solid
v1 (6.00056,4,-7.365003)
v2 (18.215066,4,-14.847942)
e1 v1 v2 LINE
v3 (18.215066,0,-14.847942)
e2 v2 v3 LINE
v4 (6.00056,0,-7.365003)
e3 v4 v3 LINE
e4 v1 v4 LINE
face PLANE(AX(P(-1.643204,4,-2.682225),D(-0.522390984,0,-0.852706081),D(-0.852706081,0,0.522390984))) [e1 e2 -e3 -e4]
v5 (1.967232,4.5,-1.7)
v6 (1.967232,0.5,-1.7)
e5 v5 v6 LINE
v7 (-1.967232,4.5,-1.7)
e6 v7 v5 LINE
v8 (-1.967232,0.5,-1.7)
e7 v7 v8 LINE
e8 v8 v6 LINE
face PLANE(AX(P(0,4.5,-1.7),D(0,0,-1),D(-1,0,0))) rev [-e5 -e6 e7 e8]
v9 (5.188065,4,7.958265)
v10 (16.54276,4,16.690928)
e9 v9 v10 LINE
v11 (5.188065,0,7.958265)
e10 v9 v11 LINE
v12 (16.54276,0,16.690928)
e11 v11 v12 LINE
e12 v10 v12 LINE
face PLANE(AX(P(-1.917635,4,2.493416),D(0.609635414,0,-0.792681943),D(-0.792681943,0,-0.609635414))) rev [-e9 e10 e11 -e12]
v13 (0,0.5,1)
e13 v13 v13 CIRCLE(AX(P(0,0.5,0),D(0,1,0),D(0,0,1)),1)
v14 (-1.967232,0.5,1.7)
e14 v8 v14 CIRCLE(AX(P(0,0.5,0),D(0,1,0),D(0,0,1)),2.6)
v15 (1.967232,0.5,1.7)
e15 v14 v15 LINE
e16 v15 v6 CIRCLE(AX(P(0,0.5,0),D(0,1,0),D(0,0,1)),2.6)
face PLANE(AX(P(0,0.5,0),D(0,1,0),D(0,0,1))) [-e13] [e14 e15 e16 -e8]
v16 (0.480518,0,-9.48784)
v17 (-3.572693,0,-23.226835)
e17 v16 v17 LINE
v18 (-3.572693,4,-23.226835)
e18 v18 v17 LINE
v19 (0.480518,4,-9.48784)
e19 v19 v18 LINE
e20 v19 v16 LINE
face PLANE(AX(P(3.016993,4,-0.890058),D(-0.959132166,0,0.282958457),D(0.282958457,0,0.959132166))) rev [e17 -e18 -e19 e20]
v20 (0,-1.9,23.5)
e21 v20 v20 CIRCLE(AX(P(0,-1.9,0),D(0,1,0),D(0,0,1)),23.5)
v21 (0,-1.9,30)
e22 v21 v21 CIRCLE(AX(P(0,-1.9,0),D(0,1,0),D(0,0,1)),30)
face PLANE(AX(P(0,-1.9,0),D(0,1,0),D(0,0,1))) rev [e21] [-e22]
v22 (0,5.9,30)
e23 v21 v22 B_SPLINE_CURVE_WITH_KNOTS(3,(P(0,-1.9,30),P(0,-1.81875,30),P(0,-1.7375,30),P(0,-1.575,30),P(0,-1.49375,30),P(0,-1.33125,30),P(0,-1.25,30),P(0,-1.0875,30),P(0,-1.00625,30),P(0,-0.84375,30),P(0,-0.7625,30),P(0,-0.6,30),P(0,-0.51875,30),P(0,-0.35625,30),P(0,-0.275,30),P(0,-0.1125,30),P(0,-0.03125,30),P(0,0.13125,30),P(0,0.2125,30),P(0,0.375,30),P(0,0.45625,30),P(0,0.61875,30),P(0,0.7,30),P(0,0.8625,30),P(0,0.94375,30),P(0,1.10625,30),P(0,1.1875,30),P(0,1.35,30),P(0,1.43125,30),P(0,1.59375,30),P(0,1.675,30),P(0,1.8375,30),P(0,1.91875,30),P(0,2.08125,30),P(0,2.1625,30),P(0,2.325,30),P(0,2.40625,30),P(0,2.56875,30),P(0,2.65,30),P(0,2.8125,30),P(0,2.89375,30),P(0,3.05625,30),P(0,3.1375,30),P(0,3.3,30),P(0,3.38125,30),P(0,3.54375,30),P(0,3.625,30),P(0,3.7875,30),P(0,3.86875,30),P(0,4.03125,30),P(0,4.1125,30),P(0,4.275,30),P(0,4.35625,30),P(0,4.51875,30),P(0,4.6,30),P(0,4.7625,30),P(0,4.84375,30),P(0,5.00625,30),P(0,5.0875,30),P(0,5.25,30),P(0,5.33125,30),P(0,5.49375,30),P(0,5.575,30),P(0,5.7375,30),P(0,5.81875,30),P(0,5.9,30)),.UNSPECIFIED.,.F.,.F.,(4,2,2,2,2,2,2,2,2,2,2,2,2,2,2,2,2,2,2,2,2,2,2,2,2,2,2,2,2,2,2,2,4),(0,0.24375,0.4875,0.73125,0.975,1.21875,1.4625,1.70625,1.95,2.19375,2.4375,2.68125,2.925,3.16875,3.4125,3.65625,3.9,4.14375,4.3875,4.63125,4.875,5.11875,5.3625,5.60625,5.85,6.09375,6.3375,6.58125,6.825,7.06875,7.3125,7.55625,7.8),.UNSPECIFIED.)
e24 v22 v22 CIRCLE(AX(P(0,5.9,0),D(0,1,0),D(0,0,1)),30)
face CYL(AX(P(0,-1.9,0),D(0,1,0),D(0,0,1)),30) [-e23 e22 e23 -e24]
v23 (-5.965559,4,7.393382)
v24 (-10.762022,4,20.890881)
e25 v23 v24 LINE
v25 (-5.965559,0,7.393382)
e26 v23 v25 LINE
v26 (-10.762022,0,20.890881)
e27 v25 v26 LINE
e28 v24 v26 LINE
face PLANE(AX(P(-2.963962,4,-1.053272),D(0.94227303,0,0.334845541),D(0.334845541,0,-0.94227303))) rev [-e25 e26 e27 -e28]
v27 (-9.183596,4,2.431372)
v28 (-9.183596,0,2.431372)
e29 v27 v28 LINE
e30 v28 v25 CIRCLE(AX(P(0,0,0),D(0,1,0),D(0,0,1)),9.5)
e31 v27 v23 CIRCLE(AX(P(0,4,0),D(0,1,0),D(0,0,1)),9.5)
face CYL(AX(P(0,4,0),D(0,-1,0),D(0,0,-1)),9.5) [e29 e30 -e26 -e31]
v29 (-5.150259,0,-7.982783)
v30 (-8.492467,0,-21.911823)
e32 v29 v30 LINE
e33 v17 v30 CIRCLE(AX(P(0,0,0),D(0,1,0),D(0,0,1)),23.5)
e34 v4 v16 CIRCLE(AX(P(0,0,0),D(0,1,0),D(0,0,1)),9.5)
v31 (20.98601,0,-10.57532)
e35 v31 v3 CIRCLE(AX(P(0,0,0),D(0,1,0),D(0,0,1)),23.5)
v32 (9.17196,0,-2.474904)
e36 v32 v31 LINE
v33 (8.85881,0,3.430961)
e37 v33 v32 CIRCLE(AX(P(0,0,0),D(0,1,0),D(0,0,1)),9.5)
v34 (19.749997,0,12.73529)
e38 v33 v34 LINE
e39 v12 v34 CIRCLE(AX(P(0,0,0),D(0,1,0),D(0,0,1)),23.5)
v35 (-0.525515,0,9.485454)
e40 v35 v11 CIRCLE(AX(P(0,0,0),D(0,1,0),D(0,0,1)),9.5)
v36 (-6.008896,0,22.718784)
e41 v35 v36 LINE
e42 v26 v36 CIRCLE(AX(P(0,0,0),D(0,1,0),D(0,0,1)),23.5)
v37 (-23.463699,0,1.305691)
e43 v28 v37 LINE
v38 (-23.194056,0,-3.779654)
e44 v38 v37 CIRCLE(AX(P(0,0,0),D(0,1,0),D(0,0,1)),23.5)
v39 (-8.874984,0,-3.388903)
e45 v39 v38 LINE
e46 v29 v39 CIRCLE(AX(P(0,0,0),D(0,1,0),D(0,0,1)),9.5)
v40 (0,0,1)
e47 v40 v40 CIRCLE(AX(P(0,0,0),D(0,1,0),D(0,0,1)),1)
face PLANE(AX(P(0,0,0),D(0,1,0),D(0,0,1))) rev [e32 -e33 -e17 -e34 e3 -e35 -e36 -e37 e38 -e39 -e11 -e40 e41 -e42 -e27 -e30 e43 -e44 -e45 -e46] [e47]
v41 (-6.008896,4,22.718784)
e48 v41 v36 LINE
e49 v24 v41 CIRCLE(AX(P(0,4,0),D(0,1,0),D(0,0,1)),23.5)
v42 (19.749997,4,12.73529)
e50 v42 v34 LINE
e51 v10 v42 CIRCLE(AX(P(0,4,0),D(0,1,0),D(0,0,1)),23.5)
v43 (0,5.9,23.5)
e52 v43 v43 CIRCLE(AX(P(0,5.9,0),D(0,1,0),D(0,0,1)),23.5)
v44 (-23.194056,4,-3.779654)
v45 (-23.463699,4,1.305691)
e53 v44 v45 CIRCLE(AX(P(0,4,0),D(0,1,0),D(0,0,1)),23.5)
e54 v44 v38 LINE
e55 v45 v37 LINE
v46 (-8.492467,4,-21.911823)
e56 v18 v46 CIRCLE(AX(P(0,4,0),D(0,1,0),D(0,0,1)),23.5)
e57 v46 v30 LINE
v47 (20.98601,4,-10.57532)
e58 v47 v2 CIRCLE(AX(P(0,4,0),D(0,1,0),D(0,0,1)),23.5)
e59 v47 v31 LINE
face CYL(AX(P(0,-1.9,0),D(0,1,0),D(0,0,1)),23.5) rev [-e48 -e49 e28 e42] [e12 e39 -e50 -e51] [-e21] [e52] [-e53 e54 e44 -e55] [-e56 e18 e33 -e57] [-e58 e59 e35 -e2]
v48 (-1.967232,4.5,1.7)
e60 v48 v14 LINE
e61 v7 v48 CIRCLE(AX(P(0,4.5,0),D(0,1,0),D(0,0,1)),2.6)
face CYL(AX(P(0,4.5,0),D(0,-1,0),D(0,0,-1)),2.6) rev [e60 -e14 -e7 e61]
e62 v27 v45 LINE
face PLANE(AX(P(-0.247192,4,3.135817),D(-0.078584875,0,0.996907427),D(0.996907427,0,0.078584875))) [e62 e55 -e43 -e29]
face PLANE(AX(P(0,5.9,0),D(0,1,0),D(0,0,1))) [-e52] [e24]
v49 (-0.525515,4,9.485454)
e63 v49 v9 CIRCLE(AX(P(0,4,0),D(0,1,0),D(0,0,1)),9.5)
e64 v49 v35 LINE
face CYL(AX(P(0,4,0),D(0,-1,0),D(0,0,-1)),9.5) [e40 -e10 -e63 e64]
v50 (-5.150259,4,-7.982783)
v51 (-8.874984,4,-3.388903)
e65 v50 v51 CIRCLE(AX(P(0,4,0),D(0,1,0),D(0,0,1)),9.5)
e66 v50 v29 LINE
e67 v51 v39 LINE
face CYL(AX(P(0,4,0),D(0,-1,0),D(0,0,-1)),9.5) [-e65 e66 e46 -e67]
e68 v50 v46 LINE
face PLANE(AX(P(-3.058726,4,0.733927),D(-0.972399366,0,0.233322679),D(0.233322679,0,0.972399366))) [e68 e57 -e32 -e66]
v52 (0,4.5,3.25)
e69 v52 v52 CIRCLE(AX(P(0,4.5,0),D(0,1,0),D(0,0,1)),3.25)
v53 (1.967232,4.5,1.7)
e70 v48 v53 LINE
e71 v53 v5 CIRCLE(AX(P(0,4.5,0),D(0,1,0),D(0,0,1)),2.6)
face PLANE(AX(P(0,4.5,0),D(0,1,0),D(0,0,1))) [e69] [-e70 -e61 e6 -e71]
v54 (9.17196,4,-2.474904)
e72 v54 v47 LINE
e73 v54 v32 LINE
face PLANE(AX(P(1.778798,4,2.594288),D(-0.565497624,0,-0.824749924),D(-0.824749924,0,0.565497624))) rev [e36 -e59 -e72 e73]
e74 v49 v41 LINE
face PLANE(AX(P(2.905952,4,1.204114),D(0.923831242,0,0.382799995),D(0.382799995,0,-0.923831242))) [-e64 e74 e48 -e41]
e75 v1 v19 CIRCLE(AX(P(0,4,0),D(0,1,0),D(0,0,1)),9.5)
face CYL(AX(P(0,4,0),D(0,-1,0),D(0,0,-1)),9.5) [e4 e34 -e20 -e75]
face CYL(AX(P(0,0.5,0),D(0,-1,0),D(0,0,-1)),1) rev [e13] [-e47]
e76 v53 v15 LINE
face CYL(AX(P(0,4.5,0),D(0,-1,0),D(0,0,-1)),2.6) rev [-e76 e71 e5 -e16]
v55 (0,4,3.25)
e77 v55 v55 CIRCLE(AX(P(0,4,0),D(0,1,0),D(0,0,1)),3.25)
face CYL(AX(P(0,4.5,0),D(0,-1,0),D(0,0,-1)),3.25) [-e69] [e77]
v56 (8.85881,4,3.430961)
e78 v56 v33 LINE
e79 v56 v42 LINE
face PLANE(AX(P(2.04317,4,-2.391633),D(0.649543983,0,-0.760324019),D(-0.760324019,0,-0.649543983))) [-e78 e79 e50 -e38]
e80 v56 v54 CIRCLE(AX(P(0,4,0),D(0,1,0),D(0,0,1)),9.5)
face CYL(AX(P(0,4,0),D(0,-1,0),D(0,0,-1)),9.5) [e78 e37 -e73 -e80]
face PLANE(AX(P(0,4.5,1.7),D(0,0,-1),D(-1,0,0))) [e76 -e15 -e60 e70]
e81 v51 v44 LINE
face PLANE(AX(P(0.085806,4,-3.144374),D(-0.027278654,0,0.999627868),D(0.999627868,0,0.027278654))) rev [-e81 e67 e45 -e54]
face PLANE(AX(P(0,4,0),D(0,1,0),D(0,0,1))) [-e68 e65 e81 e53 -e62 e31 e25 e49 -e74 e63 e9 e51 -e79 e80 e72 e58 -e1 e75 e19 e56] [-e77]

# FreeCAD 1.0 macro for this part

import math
import FreeCAD as App
import Part
import Sketcher

V = App.Vector
Q = App.Units.Quantity

doc = App.newDocument("Part")
body = doc.addObject("PartDesign::Body", "Body")

# Sketch on XZ plane
sketch1 = body.newObject("Sketcher::SketchObject", "Sketch")
sketch1.AttachmentSupport = (doc.getObject("XZ_Plane"), [""])
sketch1.MapMode = "FlatFace"
sketch1.addGeometry([
    Part.LineSegment(V(-8.874984, -3.388903, 0), V(-23.194056, -3.779654, 0)),  # 0
    Part.ArcOfCircle(Part.Circle(V(0, 0, 0), V(0, 0, 1), 23.5), math.radians(176.814931), math.radians(189.255443)),  # 1
    Part.LineSegment(V(-23.463699, 1.305691, 0), V(-9.183596, 2.431372, 0)),  # 2
    Part.ArcOfCircle(Part.Circle(V(0, 0, 0), V(0, 0, 1), 9.5), math.radians(128.899305), math.radians(165.17107)),  # 3
    Part.LineSegment(V(-5.965559, 7.393382, 0), V(-10.762022, 20.890881, 0)),  # 4
    Part.ArcOfCircle(Part.Circle(V(0, 0, 0), V(0, 0, 1), 23.5), math.radians(104.814931), math.radians(117.255443)),  # 5
    Part.LineSegment(V(-6.008896, 22.718784, 0), V(-0.525515, 9.485454, 0)),  # 6
    Part.ArcOfCircle(Part.Circle(V(0, 0, 0), V(0, 0, 1), 9.5), math.radians(56.899305), math.radians(93.17107)),  # 7
    Part.LineSegment(V(5.188065, 7.958265, 0), V(16.54276, 16.690928, 0)),  # 8
    Part.ArcOfCircle(Part.Circle(V(0, 0, 0), V(0, 0, 1), 23.5), math.radians(32.814931), math.radians(45.255443)),  # 9
    Part.LineSegment(V(19.749997, 12.73529, 0), V(8.85881, 3.430961, 0)),  # 10
    Part.ArcOfCircle(Part.Circle(V(0, 0, 0), V(0, 0, 1), 9.5), math.radians(-15.100695), math.radians(21.17107)),  # 11
    Part.LineSegment(V(9.17196, -2.474904, 0), V(20.98601, -10.57532, 0)),  # 12
    Part.ArcOfCircle(Part.Circle(V(0, 0, 0), V(0, 0, 1), 23.5), math.radians(-39.185069), math.radians(-26.744557)),  # 13
    Part.LineSegment(V(18.215066, -14.847942, 0), V(6.00056, -7.365003, 0)),  # 14
    Part.ArcOfCircle(Part.Circle(V(0, 0, 0), V(0, 0, 1), 9.5), math.radians(-87.100695), math.radians(-50.82893)),  # 15
    Part.LineSegment(V(0.480518, -9.48784, 0), V(-3.572693, -23.226835, 0)),  # 16
    Part.ArcOfCircle(Part.Circle(V(0, 0, 0), V(0, 0, 1), 23.5), math.radians(-104.964813), math.radians(-98.744557)),  # 17
    Part.ArcOfCircle(Part.Circle(V(0, 0, 0), V(0, 0, 1), 23.5), math.radians(-111.185068), math.radians(-104.964813)),  # 18
    Part.LineSegment(V(-8.492467, -21.911823, 0), V(-5.150259, -7.982783, 0)),  # 19
    Part.ArcOfCircle(Part.Circle(V(0, 0, 0), V(0, 0, 1), 9.5), math.radians(-159.100695), math.radians(-122.82893)),  # 20
    Part.Circle(V(0, 0, 0), V(0, 0, 1), 3.25),  # 21
], False)
sketch1.addConstraint([
    Sketcher.Constraint("Coincident", 0, 2, 1, 2),
    Sketcher.Constraint("Coincident", 1, 1, 2, 1),
    Sketcher.Constraint("Coincident", 2, 2, 3, 2),
    Sketcher.Constraint("Coincident", 3, 1, 4, 1),
    Sketcher.Constraint("Coincident", 4, 2, 5, 2),
    Sketcher.Constraint("Coincident", 5, 1, 6, 1),
    Sketcher.Constraint("Coincident", 6, 2, 7, 2),
    Sketcher.Constraint("Coincident", 7, 1, 8, 1),
    Sketcher.Constraint("Coincident", 8, 2, 9, 2),
    Sketcher.Constraint("Coincident", 9, 1, 10, 1),
    Sketcher.Constraint("Coincident", 10, 2, 11, 2),
    Sketcher.Constraint("Coincident", 11, 1, 12, 1),
    Sketcher.Constraint("Coincident", 12, 2, 13, 2),
    Sketcher.Constraint("Coincident", 13, 1, 14, 1),
    Sketcher.Constraint("Coincident", 14, 2, 15, 2),
    Sketcher.Constraint("Coincident", 15, 1, 16, 1),
    Sketcher.Constraint("Coincident", 16, 2, 17, 2),
    Sketcher.Constraint("Tangent", 17, 1, 18, 2),
    Sketcher.Constraint("Coincident", 18, 1, 19, 1),
    Sketcher.Constraint("Coincident", 19, 2, 20, 2),
    Sketcher.Constraint("Coincident", 20, 1, 0, 1),
    Sketcher.Constraint("Coincident", 1, 3, -1, 1),
    Sketcher.Constraint("Coincident", 3, 3, -1, 1),
    Sketcher.Constraint("Coincident", 5, 3, -1, 1),
    Sketcher.Constraint("Coincident", 7, 3, -1, 1),
    Sketcher.Constraint("Coincident", 9, 3, -1, 1),
    Sketcher.Constraint("Coincident", 11, 3, -1, 1),
    Sketcher.Constraint("Coincident", 13, 3, -1, 1),
    Sketcher.Constraint("Coincident", 15, 3, -1, 1),
    Sketcher.Constraint("Coincident", 17, 3, -1, 1),
    Sketcher.Constraint("Coincident", 20, 3, -1, 1),
    Sketcher.Constraint("Coincident", 21, 3, -1, 1),
    Sketcher.Constraint("Equal", 1, 5),
    Sketcher.Constraint("Equal", 3, 7),
    Sketcher.Constraint("Equal", 5, 9),
    Sketcher.Constraint("Equal", 7, 11),
    Sketcher.Constraint("Equal", 9, 13),
    Sketcher.Constraint("Equal", 11, 15),
    Sketcher.Constraint("Equal", 13, 17),
    Sketcher.Constraint("Equal", 17, 18),
    Sketcher.Constraint("Equal", 15, 20),
    Sketcher.Constraint("Equal", 0, 2),
    Sketcher.Constraint("Equal", 2, 4),
    Sketcher.Constraint("Equal", 4, 6),
    Sketcher.Constraint("Equal", 6, 8),
    Sketcher.Constraint("Equal", 8, 10),
    Sketcher.Constraint("Equal", 10, 12),
    Sketcher.Constraint("Equal", 12, 14),
    Sketcher.Constraint("Equal", 14, 16),
    Sketcher.Constraint("Equal", 16, 19),
    Sketcher.Constraint("Diameter", 21, Q("6.5 mm")),
    Sketcher.Constraint("Radius", 1, Q("23.5 mm")),
    Sketcher.Constraint("Radius", 3, Q("9.5 mm")),
    Sketcher.Constraint("DistanceX", 1, 1, -1, 1, Q("23.463699 mm")),
    Sketcher.Constraint("DistanceY", 3, 1, 4, 2, Q("13.497498 mm")),
    Sketcher.Constraint("DistanceX", 2, 2, 5, 1, Q("3.1747 mm")),
    Sketcher.Constraint("DistanceX", 10, 2, 12, 2, Q("12.1272 mm")),
    Sketcher.Constraint("DistanceX", 14, 2, 11, 1, Q("3.1714 mm")),
    Sketcher.Constraint("DistanceY", 14, 2, 11, 1, Q("4.890099 mm")),
    Sketcher.Constraint("DistanceX", 3, 1, -1, 1, Q("5.965559 mm")),
    Sketcher.Constraint("DistanceX", -1, 1, 8, 2, Q("16.54276 mm")),
    Sketcher.Constraint("DistanceY", 15, 1, -1, 1, Q("9.48784 mm")),
    Sketcher.Constraint("DistanceX", 19, 2, -1, 1, Q("5.150259 mm")),
    Sketcher.Constraint("DistanceY", 17, 1, 15, 1, Q("13.215148 mm")),
    Sketcher.Constraint("DistanceX", 0, 2, 18, 1, Q("14.701588 mm")),
])
pad1 = body.newObject("PartDesign::Pad", "Pad")
pad1.Profile = sketch1
pad1.Length = 4
pad1.Reversed = True

# Sketch on XZ plane
sketch2 = body.newObject("Sketcher::SketchObject", "Sketch001")
sketch2.AttachmentSupport = (doc.getObject("XZ_Plane"), [""])
sketch2.MapMode = "FlatFace"
sketch2.addGeometry([
    Part.Circle(V(0, 0, 0), V(0, 0, 1), 3.25),  # 0
    Part.ArcOfCircle(Part.Circle(V(0, 0, 0), V(0, 0, 1), 2.6), math.radians(-40.832217), math.radians(40.832217)),  # 1
    Part.LineSegment(V(1.967232, 1.7, 0), V(-1.967232, 1.7, 0)),  # 2
    Part.ArcOfCircle(Part.Circle(V(0, 0, 0), V(0, 0, 1), 2.6), math.radians(139.167783), math.radians(220.832217)),  # 3
    Part.LineSegment(V(-1.967232, -1.7, 0), V(1.967232, -1.7, 0)),  # 4
], False)
sketch2.addConstraint([
    Sketcher.Constraint("Coincident", 1, 2, 2, 1),
    Sketcher.Constraint("Coincident", 2, 2, 3, 1),
    Sketcher.Constraint("Coincident", 3, 2, 4, 1),
    Sketcher.Constraint("Coincident", 4, 2, 1, 1),
    Sketcher.Constraint("Horizontal", 2),
    Sketcher.Constraint("Horizontal", 4),
    Sketcher.Constraint("Coincident", 0, 3, -1, 1),
    Sketcher.Constraint("Coincident", 1, 3, -1, 1),
    Sketcher.Constraint("Coincident", 3, 3, -1, 1),
    Sketcher.Constraint("Equal", 1, 3),
    Sketcher.Constraint("Vertical", 2, 2, 3, 2),
    Sketcher.Constraint("Diameter", 0, Q("6.5 mm")),
    Sketcher.Constraint("Radius", 1, Q("2.6 mm")),
    Sketcher.Constraint("DistanceY", -1, 1, 1, 2, Q("1.7 mm")),
])
pad2 = body.newObject("PartDesign::Pad", "Pad001")
pad2.Profile = sketch2
pad2.Length = 4.5
pad2.Reversed = True

# Sketch on XZ plane
sketch3 = body.newObject("Sketcher::SketchObject", "Sketch002")
sketch3.AttachmentSupport = (doc.getObject("XZ_Plane"), [""])
sketch3.MapMode = "FlatFace"
sketch3.addGeometry([
    Part.ArcOfCircle(Part.Circle(V(0, 0, 0), V(0, 0, 1), 2.6), math.radians(-40.832217), math.radians(0)),  # 0
    Part.LineSegment(V(1.967232, -1.7, 0), V(-1.967232, -1.7, 0)),  # 1
    Part.ArcOfCircle(Part.Circle(V(0, 0, 0), V(0, 0, 1), 2.6), math.radians(139.167783), math.radians(220.832217)),  # 2
    Part.LineSegment(V(-1.967232, 1.7, 0), V(1.967232, 1.7, 0)),  # 3
    Part.ArcOfCircle(Part.Circle(V(0, 0, 0), V(0, 0, 1), 2.6), math.radians(0), math.radians(40.832217)),  # 4
    Part.Circle(V(0, 0, 0), V(0, 0, 1), 1),  # 5
], False)
sketch3.addConstraint([
    Sketcher.Constraint("Coincident", 0, 1, 1, 1),
    Sketcher.Constraint("Coincident", 1, 2, 2, 2),
    Sketcher.Constraint("Coincident", 2, 1, 3, 1),
    Sketcher.Constraint("Coincident", 3, 2, 4, 2),
    Sketcher.Constraint("Tangent", 4, 1, 0, 2),
    Sketcher.Constraint("Horizontal", 1),
    Sketcher.Constraint("Horizontal", 3),
    Sketcher.Constraint("Coincident", 0, 3, -1, 1),
    Sketcher.Constraint("Coincident", 2, 3, -1, 1),
    Sketcher.Constraint("Coincident", 5, 3, -1, 1),
    Sketcher.Constraint("Equal", 0, 2),
    Sketcher.Constraint("Equal", 2, 4),
    Sketcher.Constraint("PointOnObject", 4, 1, -1),
    Sketcher.Constraint("Vertical", 1, 2, 2, 1),
    Sketcher.Constraint("Diameter", 5, Q("2 mm")),
    Sketcher.Constraint("Radius", 0, Q("2.6 mm")),
    Sketcher.Constraint("DistanceY", 0, 1, -1, 1, Q("1.7 mm")),
])
pad3 = body.newObject("PartDesign::Pad", "Pad002")
pad3.Profile = sketch3
pad3.Length = 0.5
pad3.Reversed = True

# Sketch on XZ plane
sketch4 = body.newObject("Sketcher::SketchObject", "Sketch003")
sketch4.AttachmentSupport = (doc.getObject("XZ_Plane"), [""])
sketch4.MapMode = "FlatFace"
sketch4.addGeometry([
    Part.Circle(V(0, 0, 0), V(0, 0, 1), 30),
    Part.Circle(V(0, 0, 0), V(0, 0, 1), 23.5),
], False)
sketch4.addConstraint([
    Sketcher.Constraint("Coincident", 0, 3, -1, 1),
    Sketcher.Constraint("Coincident", 1, 3, -1, 1),
    Sketcher.Constraint("Diameter", 0, Q("60 mm")),
    Sketcher.Constraint("Diameter", 1, Q("47 mm")),
])
pad4 = body.newObject("PartDesign::Pad", "Pad003")
pad4.Profile = sketch4
pad4.Type = "TwoLengths"
pad4.Length = 5.9
pad4.Length2 = 1.9
pad4.Reversed = True

doc.recompute()
